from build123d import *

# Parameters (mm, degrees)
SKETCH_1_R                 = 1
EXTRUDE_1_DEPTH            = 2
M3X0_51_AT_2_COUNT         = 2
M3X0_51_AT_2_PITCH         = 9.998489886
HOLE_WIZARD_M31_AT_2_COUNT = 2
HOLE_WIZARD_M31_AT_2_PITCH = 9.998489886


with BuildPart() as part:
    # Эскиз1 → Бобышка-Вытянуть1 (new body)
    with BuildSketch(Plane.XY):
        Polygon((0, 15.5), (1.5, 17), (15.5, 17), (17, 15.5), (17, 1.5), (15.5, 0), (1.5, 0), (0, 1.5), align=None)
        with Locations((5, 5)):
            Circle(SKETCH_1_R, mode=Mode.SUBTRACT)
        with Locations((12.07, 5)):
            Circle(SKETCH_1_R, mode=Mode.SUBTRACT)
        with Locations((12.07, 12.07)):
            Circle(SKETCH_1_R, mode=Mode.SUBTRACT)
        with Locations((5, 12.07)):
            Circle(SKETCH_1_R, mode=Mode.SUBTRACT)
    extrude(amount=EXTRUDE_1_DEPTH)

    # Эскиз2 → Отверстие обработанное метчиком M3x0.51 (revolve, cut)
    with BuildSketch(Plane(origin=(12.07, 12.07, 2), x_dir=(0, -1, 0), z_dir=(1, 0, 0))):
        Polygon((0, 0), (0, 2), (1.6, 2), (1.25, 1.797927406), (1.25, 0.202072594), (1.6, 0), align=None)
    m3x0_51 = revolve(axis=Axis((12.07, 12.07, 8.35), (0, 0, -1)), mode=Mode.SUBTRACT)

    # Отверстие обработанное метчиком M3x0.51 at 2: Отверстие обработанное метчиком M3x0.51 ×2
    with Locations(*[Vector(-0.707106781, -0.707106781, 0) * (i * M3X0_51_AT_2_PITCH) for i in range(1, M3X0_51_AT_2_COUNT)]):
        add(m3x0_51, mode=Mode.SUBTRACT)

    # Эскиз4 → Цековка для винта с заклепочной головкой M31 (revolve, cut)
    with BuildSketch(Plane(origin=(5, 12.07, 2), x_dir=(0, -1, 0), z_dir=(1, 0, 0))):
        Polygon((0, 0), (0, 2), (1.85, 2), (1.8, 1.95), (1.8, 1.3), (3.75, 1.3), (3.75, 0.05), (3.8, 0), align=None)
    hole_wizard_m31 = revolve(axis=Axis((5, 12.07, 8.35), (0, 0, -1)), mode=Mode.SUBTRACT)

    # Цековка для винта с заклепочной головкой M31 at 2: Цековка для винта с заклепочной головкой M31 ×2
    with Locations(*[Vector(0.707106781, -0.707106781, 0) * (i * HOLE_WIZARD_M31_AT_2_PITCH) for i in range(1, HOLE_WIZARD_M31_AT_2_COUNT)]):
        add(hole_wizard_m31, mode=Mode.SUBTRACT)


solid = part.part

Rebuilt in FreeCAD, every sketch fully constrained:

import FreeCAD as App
import Part
import Sketcher

V = App.Vector
Q = App.Units.Quantity

doc = App.newDocument("Part")
body = doc.addObject("PartDesign::Body", "Body")

# Sketch on XY plane
sketch1 = doc.addObject("Sketcher::SketchObject", "Sketch")
body.addObject(sketch1)
sketch1.AttachmentSupport = (doc.XY_Plane, [""])
sketch1.MapMode = "FlatFace"
sketch1.addGeometry([
    Part.LineSegment(V(1.5, 17, 0), V(0, 15.5, 0)),  # 0
    Part.LineSegment(V(0, 15.5, 0), V(0, 1.5, 0)),  # 1
    Part.LineSegment(V(0, 1.5, 0), V(1.5, 0, 0)),  # 2
    Part.LineSegment(V(1.5, 0, 0), V(15.5, 0, 0)),  # 3
    Part.LineSegment(V(15.5, 0, 0), V(17, 1.5, 0)),  # 4
    Part.LineSegment(V(17, 1.5, 0), V(17, 15.5, 0)),  # 5
    Part.LineSegment(V(17, 15.5, 0), V(15.5, 17, 0)),  # 6
    Part.LineSegment(V(15.5, 17, 0), V(1.5, 17, 0)),  # 7
    Part.Circle(V(12.1, 5, 0), V(0, 0, 1), 1),  # 8
    Part.Circle(V(5, 5, 0), V(0, 0, 1), 1),  # 9
    Part.Circle(V(12.1, 12.1, 0), V(0, 0, 1), 1),  # 10
    Part.Circle(V(5, 12.1, 0), V(0, 0, 1), 1),  # 11
], False)
sketch1.addConstraint([
    Sketcher.Constraint("Coincident", 0, 2, 1, 1),
    Sketcher.Constraint("Coincident", 1, 2, 2, 1),
    Sketcher.Constraint("Coincident", 2, 2, 3, 1),
    Sketcher.Constraint("Coincident", 3, 2, 4, 1),
    Sketcher.Constraint("Coincident", 4, 2, 5, 1),
    Sketcher.Constraint("Coincident", 5, 2, 6, 1),
    Sketcher.Constraint("Coincident", 6, 2, 7, 1),
    Sketcher.Constraint("Coincident", 7, 2, 0, 1),
    Sketcher.Constraint("Vertical", 1),
    Sketcher.Constraint("Horizontal", 3),
    Sketcher.Constraint("Vertical", 5),
    Sketcher.Constraint("Horizontal", 7),
    Sketcher.Constraint("Equal", 8, 9),
    Sketcher.Constraint("Equal", 9, 10),
    Sketcher.Constraint("Equal", 10, 11),
    Sketcher.Constraint("PointOnObject", 0, 2, -2),
    Sketcher.Constraint("PointOnObject", 2, 2, -1),
    Sketcher.Constraint("Perpendicular", 0, 2),
    Sketcher.Constraint("Perpendicular", 2, 4),
    Sketcher.Constraint("Perpendicular", 4, 6),
    Sketcher.Constraint("Horizontal", 8, 3, 9, 3),
    Sketcher.Constraint("Horizontal", 10, 3, 11, 3),
    Sketcher.Constraint("Horizontal", 1, 2, 4, 2),
    Sketcher.Constraint("Horizontal", 0, 2, 5, 2),
    Sketcher.Constraint("Vertical", 8, 3, 10, 3),
    Sketcher.Constraint("Vertical", 9, 3, 11, 3),
    Sketcher.Constraint("Vertical", 3, 2, 6, 2),
    Sketcher.Constraint("Vertical", 2, 2, 7, 2),
    Sketcher.Constraint("Equal", 7, 1),
    Sketcher.Constraint("Diameter", 8, 2.0),
    Sketcher.Constraint("DistanceX", 3, 1, 3, 2, 14.0),
    Sketcher.Constraint("DistanceY", -1, 1, 8, 3, 5.0),
    Sketcher.Constraint("DistanceX", -1, 1, 9, 3, 5.0),
    Sketcher.Constraint("DistanceX", -1, 1, 4, 2, 17.0),
    Sketcher.Constraint("DistanceX", -1, 1, 8, 3, 12.07),
    Sketcher.Constraint("DistanceY", -1, 1, 10, 3, 12.07),
])
pad1 = doc.addObject("PartDesign::Pad", "Pad")
body.addObject(pad1)
pad1.Profile = sketch1
pad1.Length = 2

# Sketch on YZ plane
sketch2 = doc.addObject("Sketcher::SketchObject", "Sketch001")
body.addObject(sketch2)
sketch2.AttachmentSupport = (doc.YZ_Plane, [""])
sketch2.MapMode = "FlatFace"
sketch2.AttachmentOffset = App.Placement(V(0, 0, 12.07), App.Rotation())
sketch2.addGeometry([
    Part.LineSegment(V(12.07, 0, 0), V(12.07, 2, 0)),  # 0
    Part.LineSegment(V(12.07, 2, 0), V(10.47, 2, 0)),  # 1
    Part.LineSegment(V(10.47, 2, 0), V(10.82, 1.8, 0)),  # 2
    Part.LineSegment(V(10.82, 1.8, 0), V(10.82, 0.2, 0)),  # 3
    Part.LineSegment(V(10.82, 0.2, 0), V(10.47, 0, 0)),  # 4
    Part.LineSegment(V(10.47, 0, 0), V(12.07, 0, 0)),  # 5
], False)
sketch2.addGeometry(Part.LineSegment(V(12.07, 2, 0), V(12.07, 0, 0)), True)  # axis
sketch2.addConstraint([
    Sketcher.Constraint("Coincident", 0, 2, 1, 1),
    Sketcher.Constraint("Coincident", 1, 2, 2, 1),
    Sketcher.Constraint("Coincident", 2, 2, 3, 1),
    Sketcher.Constraint("Coincident", 3, 2, 4, 1),
    Sketcher.Constraint("Coincident", 4, 2, 5, 1),
    Sketcher.Constraint("Coincident", 5, 2, 0, 1),
    Sketcher.Constraint("Vertical", 0),
    Sketcher.Constraint("Horizontal", 1),
    Sketcher.Constraint("Vertical", 3),
    Sketcher.Constraint("Horizontal", 5),
    Sketcher.Constraint("Vertical", 6),
    Sketcher.Constraint("Coincident", 6, 1, 0, 2),
    Sketcher.Constraint("PointOnObject", 4, 2, -1),
    Sketcher.Constraint("PointOnObject", 6, 2, -1),
    Sketcher.Constraint("Vertical", 1, 2, 4, 2),
    Sketcher.Constraint("Equal", 2, 4),
    Sketcher.Constraint("DistanceY", 0, 1, 0, 2, 2.0),
    Sketcher.Constraint("Angle", 2, Q("-30 deg")),
    Sketcher.Constraint("DistanceX", 1, 2, 1, 1, 1.6),
    Sketcher.Constraint("DistanceX", -1, 1, 0, 2, 12.07),
    Sketcher.Constraint("DistanceX", -1, 1, 2, 2, 10.82),
])
groove = doc.addObject("PartDesign::Groove", "Groove")
body.addObject(groove)
groove.Profile = sketch2
groove.ReferenceAxis = (sketch2, ["Axis0"])
groove.Angle = 360
doc.recompute()

datumline = doc.addObject("PartDesign::Line", "DatumLine")
body.addObject(datumline)
datumline.Placement = App.Placement(V(0, 0, 0), App.Rotation(V(0, 0, 1), V(-0.707106781, -0.707106781, 0)))
linearpattern = doc.addObject("PartDesign::LinearPattern", "LinearPattern")
body.addObject(linearpattern)
linearpattern.Originals = [groove]
linearpattern.Direction = (datumline, [""])
linearpattern.Mode = "offset"
linearpattern.Offset = 9.99849
linearpattern.Occurrences = 2
body.Tip = linearpattern

# Sketch on YZ plane
sketch3 = doc.addObject("Sketcher::SketchObject", "Sketch002")
body.addObject(sketch3)
sketch3.AttachmentSupport = (doc.YZ_Plane, [""])
sketch3.MapMode = "FlatFace"
sketch3.AttachmentOffset = App.Placement(V(0, 0, 5), App.Rotation())
sketch3.addGeometry([
    Part.LineSegment(V(12.07, 0, 0), V(12.07, 2, 0)),  # 0
    Part.LineSegment(V(12.07, 2, 0), V(8.27, 2, 0)),  # 1
    Part.LineSegment(V(8.27, 2, 0), V(8.32, 1.95, 0)),  # 2
    Part.LineSegment(V(8.32, 1.95, 0), V(8.32, 0.7, 0)),  # 3
    Part.LineSegment(V(8.32, 0.7, 0), V(10.27, 0.7, 0)),  # 4
    Part.LineSegment(V(10.27, 0.7, 0), V(10.27, 0.05, 0)),  # 5
    Part.LineSegment(V(10.27, 0.05, 0), V(10.22, 0, 0)),  # 6
    Part.LineSegment(V(10.22, 0, 0), V(12.07, 0, 0)),  # 7
], False)
sketch3.addGeometry(Part.LineSegment(V(12.07, 2, 0), V(12.07, 0, 0)), True)  # axis
sketch3.addConstraint([
    Sketcher.Constraint("Coincident", 0, 2, 1, 1),
    Sketcher.Constraint("Coincident", 1, 2, 2, 1),
    Sketcher.Constraint("Coincident", 2, 2, 3, 1),
    Sketcher.Constraint("Coincident", 3, 2, 4, 1),
    Sketcher.Constraint("Coincident", 4, 2, 5, 1),
    Sketcher.Constraint("Coincident", 5, 2, 6, 1),
    Sketcher.Constraint("Coincident", 6, 2, 7, 1),
    Sketcher.Constraint("Coincident", 7, 2, 0, 1),
    Sketcher.Constraint("Vertical", 0),
    Sketcher.Constraint("Horizontal", 1),
    Sketcher.Constraint("Vertical", 3),
    Sketcher.Constraint("Horizontal", 4),
    Sketcher.Constraint("Vertical", 5),
    Sketcher.Constraint("Horizontal", 7),
    Sketcher.Constraint("Vertical", 8),
    Sketcher.Constraint("Coincident", 8, 1, 0, 2),
    Sketcher.Constraint("PointOnObject", 6, 2, -1),
    Sketcher.Constraint("PointOnObject", 8, 2, -1),
    Sketcher.Constraint("Perpendicular", 2, 6),
    Sketcher.Constraint("Equal", 2, 6),
    Sketcher.Constraint("DistanceY", 0, 1, 0, 2, 2.0),
    Sketcher.Constraint("Angle", 2, Q("-45 deg")),
    Sketcher.Constraint("DistanceX", 1, 2, 1, 1, 3.8),
    Sketcher.Constraint("DistanceX", 1, 2, 4, 2, 2.0),
    Sketcher.Constraint("DistanceX", 4, 1, 4, 2, 1.95),
    Sketcher.Constraint("DistanceY", 3, 2, 3, 1, 1.25),
    Sketcher.Constraint("DistanceX", -1, 1, 0, 2, 12.07),
])
groove2 = doc.addObject("PartDesign::Groove", "Groove001")
body.addObject(groove2)
groove2.Profile = sketch3
groove2.ReferenceAxis = (sketch3, ["Axis0"])
groove2.Angle = 360
doc.recompute()

datumline2 = doc.addObject("PartDesign::Line", "DatumLine001")
body.addObject(datumline2)
datumline2.Placement = App.Placement(V(0, 0, 0), App.Rotation(V(0, 0, 1), V(0.707106781, -0.707106781, 0)))
linearpattern2 = doc.addObject("PartDesign::LinearPattern", "LinearPattern001")
body.addObject(linearpattern2)
linearpattern2.Originals = [groove2]
linearpattern2.Direction = (datumline2, [""])
linearpattern2.Mode = "offset"
linearpattern2.Offset = 9.99849
linearpattern2.Occurrences = 2
body.Tip = linearpattern2

doc.recompute()
